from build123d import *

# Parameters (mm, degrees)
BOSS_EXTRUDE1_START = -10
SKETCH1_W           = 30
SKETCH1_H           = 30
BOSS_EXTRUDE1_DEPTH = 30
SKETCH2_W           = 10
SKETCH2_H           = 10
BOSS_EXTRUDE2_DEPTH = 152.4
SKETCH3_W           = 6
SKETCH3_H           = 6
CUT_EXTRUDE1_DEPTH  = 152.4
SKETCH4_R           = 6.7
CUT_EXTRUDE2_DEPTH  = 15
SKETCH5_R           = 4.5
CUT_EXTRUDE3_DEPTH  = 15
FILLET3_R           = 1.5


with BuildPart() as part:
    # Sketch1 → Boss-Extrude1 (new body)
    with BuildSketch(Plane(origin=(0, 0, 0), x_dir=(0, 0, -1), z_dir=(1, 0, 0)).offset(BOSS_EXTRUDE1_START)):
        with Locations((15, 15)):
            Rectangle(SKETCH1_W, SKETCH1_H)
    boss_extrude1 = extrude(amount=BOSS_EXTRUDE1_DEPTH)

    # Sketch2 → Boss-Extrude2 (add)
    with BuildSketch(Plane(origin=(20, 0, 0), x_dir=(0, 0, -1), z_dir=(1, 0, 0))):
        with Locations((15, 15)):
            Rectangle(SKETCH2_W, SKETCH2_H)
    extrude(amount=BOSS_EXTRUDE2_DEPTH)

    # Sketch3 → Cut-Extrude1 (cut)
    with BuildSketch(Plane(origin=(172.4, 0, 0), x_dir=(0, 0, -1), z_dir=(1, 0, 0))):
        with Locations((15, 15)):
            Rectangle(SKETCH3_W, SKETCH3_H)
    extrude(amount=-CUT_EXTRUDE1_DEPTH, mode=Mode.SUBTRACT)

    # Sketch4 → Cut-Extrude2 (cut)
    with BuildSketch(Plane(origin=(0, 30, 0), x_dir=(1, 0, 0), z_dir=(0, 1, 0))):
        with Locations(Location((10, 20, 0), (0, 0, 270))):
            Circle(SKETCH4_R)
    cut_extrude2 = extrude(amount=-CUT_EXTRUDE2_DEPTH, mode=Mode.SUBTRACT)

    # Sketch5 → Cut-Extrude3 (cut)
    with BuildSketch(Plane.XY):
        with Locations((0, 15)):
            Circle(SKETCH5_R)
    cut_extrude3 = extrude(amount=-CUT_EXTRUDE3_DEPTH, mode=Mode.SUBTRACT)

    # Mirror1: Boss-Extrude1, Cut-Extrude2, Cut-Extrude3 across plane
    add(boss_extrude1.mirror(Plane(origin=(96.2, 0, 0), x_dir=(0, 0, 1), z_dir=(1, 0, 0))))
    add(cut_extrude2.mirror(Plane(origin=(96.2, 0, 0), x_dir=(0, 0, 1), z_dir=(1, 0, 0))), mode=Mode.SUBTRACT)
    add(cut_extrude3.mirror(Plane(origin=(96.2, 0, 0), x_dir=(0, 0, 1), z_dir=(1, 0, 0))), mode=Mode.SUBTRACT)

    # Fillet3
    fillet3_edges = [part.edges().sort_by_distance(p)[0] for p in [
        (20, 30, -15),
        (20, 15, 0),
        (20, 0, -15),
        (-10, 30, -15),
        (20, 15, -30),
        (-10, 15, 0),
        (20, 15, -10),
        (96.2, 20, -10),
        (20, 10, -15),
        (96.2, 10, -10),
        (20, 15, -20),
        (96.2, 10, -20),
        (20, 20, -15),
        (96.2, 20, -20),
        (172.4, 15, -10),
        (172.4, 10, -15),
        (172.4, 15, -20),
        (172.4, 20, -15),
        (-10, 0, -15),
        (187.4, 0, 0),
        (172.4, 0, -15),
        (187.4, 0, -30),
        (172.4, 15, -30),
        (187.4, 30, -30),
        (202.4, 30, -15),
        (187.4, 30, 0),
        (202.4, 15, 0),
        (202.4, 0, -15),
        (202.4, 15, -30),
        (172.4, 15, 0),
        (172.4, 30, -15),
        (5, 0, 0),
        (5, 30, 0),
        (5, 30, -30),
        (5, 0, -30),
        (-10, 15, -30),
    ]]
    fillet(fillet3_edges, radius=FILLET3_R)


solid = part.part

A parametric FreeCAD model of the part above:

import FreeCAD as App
import Part
import Sketcher
from FreeCAD import Vector
Q = App.Units.Quantity


def edges_at(feature, points):
    """Names of the edges that pass closest to the given points."""
    edges = feature.Shape.Edges
    near = lambda p: min(range(len(edges)), key=lambda i: edges[i].distToShape(Part.Vertex(*p))[0])
    return sorted({f"Edge{near(p) + 1}" for p in points})


def add_polygon(sketch, points):
    """Adds a closed chain of lines whose ends are joined by coincident constraints."""
    first, n = sketch.GeometryCount, len(points)
    for a, b in zip(points, points[1:] + points[:1]):
        sketch.addGeometry(Part.LineSegment(App.Vector(*a, 0), App.Vector(*b, 0)), False)
    for i in range(n):
        sketch.addConstraint(Sketcher.Constraint("Coincident", first + i, 2, first + (i + 1) % n, 1))

doc = App.newDocument("Part")
body = doc.addObject("PartDesign::Body", "Body")

sketch1 = body.newObject("Sketcher::SketchObject", "Sketch")
sketch1.AttachmentSupport = (doc.getObject("YZ_Plane"), [""])
sketch1.MapMode = "FlatFace"
sketch1.AttachmentOffset = App.Placement(Vector(0, 0, -10), App.Rotation())
add_polygon(sketch1, [(30, 0), (0, 0), (0, -30), (30, -30)])
sketch1.addConstraint([
    Sketcher.Constraint("Horizontal", 0),
    Sketcher.Constraint("Vertical", 1),
    Sketcher.Constraint("Horizontal", 2),
    Sketcher.Constraint("Vertical", 3),
    Sketcher.Constraint("Coincident", 0, 2, -1, 1),
    Sketcher.Constraint("Equal", 2, 1),
    Sketcher.Constraint("DistanceX", 0, 2, 0, 1, Q("30 mm")),
])
pad1 = body.newObject("PartDesign::Pad", "Pad")
pad1.Profile = sketch1
pad1.Length = 30

sketch2 = body.newObject("Sketcher::SketchObject", "Sketch001")
sketch2.AttachmentSupport = (doc.getObject("YZ_Plane"), [""])
sketch2.MapMode = "FlatFace"
sketch2.AttachmentOffset = App.Placement(Vector(0, 0, 20), App.Rotation())
add_polygon(sketch2, [(20, -10), (10, -10), (10, -20), (20, -20)])
sketch2.addConstraint([
    Sketcher.Constraint("Horizontal", 0),
    Sketcher.Constraint("Vertical", 1),
    Sketcher.Constraint("Horizontal", 2),
    Sketcher.Constraint("Vertical", 3),
    Sketcher.Constraint("Equal", 2, 1),
    Sketcher.Constraint("DistanceX", 0, 2, 0, 1, Q("10 mm")),
    Sketcher.Constraint("DistanceX", -1, 1, 0, 2, Q("10 mm")),
    Sketcher.Constraint("DistanceY", 0, 2, -1, 1, Q("10 mm")),
])
pad2 = body.newObject("PartDesign::Pad", "Pad001")
pad2.Profile = sketch2
pad2.Length = 152.4

sketch3 = body.newObject("Sketcher::SketchObject", "Sketch002")
sketch3.AttachmentSupport = (doc.getObject("YZ_Plane"), [""])
sketch3.MapMode = "FlatFace"
sketch3.AttachmentOffset = App.Placement(Vector(0, 0, 172.4), App.Rotation())
add_polygon(sketch3, [(18, -12), (12, -12), (12, -18), (18, -18)])
sketch3.addConstraint([
    Sketcher.Constraint("Horizontal", 0),
    Sketcher.Constraint("Vertical", 1),
    Sketcher.Constraint("Horizontal", 2),
    Sketcher.Constraint("Vertical", 3),
    Sketcher.Constraint("Equal", 2, 1),
    Sketcher.Constraint("DistanceX", 0, 2, 0, 1, Q("6 mm")),
    Sketcher.Constraint("DistanceX", -1, 1, 0, 2, Q("12 mm")),
    Sketcher.Constraint("DistanceY", 0, 2, -1, 1, Q("12 mm")),
])
pocket1 = body.newObject("PartDesign::Pocket", "Pocket")
pocket1.Profile = sketch3
pocket1.Length = 152.4

sketch4 = body.newObject("Sketcher::SketchObject", "Sketch003")
sketch4.AttachmentSupport = (doc.getObject("XZ_Plane"), [""])
sketch4.MapMode = "FlatFace"
sketch4.AttachmentOffset = App.Placement(Vector(0, 0, -30), App.Rotation())
sketch4.addGeometry(Part.Circle(Vector(10, -20, 0), Vector(0, 0, 1), 7), False)
sketch4.addConstraint([
    Sketcher.Constraint("Diameter", 0, Q("13.4 mm")),
    Sketcher.Constraint("DistanceX", -1, 1, 0, 3, Q("10 mm")),
    Sketcher.Constraint("DistanceY", 0, 3, -1, 1, Q("20 mm")),
])
pocket2 = body.newObject("PartDesign::Pocket", "Pocket001")
pocket2.Profile = sketch4
pocket2.Length = 15
pocket2.Reversed = True

sketch5 = body.newObject("Sketcher::SketchObject", "Sketch004")
sketch5.AttachmentSupport = (doc.getObject("XY_Plane"), [""])
sketch5.MapMode = "FlatFace"
sketch5.addGeometry(Part.Circle(Vector(0, 15, 0), Vector(0, 0, 1), 4.5), False)
sketch5.addConstraint([
    Sketcher.Constraint("PointOnObject", 0, 3, -2),
    Sketcher.Constraint("Diameter", 0, Q("9 mm")),
    Sketcher.Constraint("DistanceY", -1, 1, 0, 3, Q("15 mm")),
])
pocket3 = body.newObject("PartDesign::Pocket", "Pocket002")
pocket3.Profile = sketch5
pocket3.Length = 15
doc.recompute()

datumplane = body.newObject("PartDesign::Plane", "DatumPlane")
datumplane.AttachmentSupport = (doc.getObject("YZ_Plane"), [""])
datumplane.MapMode = "FlatFace"
datumplane.AttachmentOffset = App.Placement(Vector(0, 0, 96.2), App.Rotation())
mirrored = body.newObject("PartDesign::Mirrored", "Mirrored")
mirrored.Originals = [pad1, pocket2, pocket3]
mirrored.MirrorPlane = (datumplane, [""])
body.Tip = mirrored
doc.recompute()

fillet = body.newObject("PartDesign::Fillet", "Fillet")
fillet.Base = (mirrored, edges_at(mirrored, [
    (20, 30, -15),
    (20, 15, 0),
    (20, 0, -15),
    (-10, 30, -15),
    (20, 15, -30),
    (-10, 15, 0),
    (20, 15, -10),
    (96.2, 20, -10),
    (20, 10, -15),
    (96.2, 10, -10),
    (20, 15, -20),
    (96.2, 10, -20),
    (20, 20, -15),
    (96.2, 20, -20),
    (172.4, 15, -10),
    (172.4, 10, -15),
    (172.4, 15, -20),
    (172.4, 20, -15),
    (-10, 0, -15),
    (187.4, 0, 0),
    (172.4, 0, -15),
    (187.4, 0, -30),
    (172.4, 15, -30),
    (187.4, 30, -30),
    (202.4, 30, -15),
    (187.4, 30, 0),
    (202.4, 15, 0),
    (202.4, 0, -15),
    (202.4, 15, -30),
    (172.4, 15, 0),
    (172.4, 30, -15),
    (5, 0, 0),
    (5, 30, 0),
    (5, 30, -30),
    (5, 0, -30),
    (-10, 15, -30),
]))
fillet.Radius = 1.5

doc.recompute()
